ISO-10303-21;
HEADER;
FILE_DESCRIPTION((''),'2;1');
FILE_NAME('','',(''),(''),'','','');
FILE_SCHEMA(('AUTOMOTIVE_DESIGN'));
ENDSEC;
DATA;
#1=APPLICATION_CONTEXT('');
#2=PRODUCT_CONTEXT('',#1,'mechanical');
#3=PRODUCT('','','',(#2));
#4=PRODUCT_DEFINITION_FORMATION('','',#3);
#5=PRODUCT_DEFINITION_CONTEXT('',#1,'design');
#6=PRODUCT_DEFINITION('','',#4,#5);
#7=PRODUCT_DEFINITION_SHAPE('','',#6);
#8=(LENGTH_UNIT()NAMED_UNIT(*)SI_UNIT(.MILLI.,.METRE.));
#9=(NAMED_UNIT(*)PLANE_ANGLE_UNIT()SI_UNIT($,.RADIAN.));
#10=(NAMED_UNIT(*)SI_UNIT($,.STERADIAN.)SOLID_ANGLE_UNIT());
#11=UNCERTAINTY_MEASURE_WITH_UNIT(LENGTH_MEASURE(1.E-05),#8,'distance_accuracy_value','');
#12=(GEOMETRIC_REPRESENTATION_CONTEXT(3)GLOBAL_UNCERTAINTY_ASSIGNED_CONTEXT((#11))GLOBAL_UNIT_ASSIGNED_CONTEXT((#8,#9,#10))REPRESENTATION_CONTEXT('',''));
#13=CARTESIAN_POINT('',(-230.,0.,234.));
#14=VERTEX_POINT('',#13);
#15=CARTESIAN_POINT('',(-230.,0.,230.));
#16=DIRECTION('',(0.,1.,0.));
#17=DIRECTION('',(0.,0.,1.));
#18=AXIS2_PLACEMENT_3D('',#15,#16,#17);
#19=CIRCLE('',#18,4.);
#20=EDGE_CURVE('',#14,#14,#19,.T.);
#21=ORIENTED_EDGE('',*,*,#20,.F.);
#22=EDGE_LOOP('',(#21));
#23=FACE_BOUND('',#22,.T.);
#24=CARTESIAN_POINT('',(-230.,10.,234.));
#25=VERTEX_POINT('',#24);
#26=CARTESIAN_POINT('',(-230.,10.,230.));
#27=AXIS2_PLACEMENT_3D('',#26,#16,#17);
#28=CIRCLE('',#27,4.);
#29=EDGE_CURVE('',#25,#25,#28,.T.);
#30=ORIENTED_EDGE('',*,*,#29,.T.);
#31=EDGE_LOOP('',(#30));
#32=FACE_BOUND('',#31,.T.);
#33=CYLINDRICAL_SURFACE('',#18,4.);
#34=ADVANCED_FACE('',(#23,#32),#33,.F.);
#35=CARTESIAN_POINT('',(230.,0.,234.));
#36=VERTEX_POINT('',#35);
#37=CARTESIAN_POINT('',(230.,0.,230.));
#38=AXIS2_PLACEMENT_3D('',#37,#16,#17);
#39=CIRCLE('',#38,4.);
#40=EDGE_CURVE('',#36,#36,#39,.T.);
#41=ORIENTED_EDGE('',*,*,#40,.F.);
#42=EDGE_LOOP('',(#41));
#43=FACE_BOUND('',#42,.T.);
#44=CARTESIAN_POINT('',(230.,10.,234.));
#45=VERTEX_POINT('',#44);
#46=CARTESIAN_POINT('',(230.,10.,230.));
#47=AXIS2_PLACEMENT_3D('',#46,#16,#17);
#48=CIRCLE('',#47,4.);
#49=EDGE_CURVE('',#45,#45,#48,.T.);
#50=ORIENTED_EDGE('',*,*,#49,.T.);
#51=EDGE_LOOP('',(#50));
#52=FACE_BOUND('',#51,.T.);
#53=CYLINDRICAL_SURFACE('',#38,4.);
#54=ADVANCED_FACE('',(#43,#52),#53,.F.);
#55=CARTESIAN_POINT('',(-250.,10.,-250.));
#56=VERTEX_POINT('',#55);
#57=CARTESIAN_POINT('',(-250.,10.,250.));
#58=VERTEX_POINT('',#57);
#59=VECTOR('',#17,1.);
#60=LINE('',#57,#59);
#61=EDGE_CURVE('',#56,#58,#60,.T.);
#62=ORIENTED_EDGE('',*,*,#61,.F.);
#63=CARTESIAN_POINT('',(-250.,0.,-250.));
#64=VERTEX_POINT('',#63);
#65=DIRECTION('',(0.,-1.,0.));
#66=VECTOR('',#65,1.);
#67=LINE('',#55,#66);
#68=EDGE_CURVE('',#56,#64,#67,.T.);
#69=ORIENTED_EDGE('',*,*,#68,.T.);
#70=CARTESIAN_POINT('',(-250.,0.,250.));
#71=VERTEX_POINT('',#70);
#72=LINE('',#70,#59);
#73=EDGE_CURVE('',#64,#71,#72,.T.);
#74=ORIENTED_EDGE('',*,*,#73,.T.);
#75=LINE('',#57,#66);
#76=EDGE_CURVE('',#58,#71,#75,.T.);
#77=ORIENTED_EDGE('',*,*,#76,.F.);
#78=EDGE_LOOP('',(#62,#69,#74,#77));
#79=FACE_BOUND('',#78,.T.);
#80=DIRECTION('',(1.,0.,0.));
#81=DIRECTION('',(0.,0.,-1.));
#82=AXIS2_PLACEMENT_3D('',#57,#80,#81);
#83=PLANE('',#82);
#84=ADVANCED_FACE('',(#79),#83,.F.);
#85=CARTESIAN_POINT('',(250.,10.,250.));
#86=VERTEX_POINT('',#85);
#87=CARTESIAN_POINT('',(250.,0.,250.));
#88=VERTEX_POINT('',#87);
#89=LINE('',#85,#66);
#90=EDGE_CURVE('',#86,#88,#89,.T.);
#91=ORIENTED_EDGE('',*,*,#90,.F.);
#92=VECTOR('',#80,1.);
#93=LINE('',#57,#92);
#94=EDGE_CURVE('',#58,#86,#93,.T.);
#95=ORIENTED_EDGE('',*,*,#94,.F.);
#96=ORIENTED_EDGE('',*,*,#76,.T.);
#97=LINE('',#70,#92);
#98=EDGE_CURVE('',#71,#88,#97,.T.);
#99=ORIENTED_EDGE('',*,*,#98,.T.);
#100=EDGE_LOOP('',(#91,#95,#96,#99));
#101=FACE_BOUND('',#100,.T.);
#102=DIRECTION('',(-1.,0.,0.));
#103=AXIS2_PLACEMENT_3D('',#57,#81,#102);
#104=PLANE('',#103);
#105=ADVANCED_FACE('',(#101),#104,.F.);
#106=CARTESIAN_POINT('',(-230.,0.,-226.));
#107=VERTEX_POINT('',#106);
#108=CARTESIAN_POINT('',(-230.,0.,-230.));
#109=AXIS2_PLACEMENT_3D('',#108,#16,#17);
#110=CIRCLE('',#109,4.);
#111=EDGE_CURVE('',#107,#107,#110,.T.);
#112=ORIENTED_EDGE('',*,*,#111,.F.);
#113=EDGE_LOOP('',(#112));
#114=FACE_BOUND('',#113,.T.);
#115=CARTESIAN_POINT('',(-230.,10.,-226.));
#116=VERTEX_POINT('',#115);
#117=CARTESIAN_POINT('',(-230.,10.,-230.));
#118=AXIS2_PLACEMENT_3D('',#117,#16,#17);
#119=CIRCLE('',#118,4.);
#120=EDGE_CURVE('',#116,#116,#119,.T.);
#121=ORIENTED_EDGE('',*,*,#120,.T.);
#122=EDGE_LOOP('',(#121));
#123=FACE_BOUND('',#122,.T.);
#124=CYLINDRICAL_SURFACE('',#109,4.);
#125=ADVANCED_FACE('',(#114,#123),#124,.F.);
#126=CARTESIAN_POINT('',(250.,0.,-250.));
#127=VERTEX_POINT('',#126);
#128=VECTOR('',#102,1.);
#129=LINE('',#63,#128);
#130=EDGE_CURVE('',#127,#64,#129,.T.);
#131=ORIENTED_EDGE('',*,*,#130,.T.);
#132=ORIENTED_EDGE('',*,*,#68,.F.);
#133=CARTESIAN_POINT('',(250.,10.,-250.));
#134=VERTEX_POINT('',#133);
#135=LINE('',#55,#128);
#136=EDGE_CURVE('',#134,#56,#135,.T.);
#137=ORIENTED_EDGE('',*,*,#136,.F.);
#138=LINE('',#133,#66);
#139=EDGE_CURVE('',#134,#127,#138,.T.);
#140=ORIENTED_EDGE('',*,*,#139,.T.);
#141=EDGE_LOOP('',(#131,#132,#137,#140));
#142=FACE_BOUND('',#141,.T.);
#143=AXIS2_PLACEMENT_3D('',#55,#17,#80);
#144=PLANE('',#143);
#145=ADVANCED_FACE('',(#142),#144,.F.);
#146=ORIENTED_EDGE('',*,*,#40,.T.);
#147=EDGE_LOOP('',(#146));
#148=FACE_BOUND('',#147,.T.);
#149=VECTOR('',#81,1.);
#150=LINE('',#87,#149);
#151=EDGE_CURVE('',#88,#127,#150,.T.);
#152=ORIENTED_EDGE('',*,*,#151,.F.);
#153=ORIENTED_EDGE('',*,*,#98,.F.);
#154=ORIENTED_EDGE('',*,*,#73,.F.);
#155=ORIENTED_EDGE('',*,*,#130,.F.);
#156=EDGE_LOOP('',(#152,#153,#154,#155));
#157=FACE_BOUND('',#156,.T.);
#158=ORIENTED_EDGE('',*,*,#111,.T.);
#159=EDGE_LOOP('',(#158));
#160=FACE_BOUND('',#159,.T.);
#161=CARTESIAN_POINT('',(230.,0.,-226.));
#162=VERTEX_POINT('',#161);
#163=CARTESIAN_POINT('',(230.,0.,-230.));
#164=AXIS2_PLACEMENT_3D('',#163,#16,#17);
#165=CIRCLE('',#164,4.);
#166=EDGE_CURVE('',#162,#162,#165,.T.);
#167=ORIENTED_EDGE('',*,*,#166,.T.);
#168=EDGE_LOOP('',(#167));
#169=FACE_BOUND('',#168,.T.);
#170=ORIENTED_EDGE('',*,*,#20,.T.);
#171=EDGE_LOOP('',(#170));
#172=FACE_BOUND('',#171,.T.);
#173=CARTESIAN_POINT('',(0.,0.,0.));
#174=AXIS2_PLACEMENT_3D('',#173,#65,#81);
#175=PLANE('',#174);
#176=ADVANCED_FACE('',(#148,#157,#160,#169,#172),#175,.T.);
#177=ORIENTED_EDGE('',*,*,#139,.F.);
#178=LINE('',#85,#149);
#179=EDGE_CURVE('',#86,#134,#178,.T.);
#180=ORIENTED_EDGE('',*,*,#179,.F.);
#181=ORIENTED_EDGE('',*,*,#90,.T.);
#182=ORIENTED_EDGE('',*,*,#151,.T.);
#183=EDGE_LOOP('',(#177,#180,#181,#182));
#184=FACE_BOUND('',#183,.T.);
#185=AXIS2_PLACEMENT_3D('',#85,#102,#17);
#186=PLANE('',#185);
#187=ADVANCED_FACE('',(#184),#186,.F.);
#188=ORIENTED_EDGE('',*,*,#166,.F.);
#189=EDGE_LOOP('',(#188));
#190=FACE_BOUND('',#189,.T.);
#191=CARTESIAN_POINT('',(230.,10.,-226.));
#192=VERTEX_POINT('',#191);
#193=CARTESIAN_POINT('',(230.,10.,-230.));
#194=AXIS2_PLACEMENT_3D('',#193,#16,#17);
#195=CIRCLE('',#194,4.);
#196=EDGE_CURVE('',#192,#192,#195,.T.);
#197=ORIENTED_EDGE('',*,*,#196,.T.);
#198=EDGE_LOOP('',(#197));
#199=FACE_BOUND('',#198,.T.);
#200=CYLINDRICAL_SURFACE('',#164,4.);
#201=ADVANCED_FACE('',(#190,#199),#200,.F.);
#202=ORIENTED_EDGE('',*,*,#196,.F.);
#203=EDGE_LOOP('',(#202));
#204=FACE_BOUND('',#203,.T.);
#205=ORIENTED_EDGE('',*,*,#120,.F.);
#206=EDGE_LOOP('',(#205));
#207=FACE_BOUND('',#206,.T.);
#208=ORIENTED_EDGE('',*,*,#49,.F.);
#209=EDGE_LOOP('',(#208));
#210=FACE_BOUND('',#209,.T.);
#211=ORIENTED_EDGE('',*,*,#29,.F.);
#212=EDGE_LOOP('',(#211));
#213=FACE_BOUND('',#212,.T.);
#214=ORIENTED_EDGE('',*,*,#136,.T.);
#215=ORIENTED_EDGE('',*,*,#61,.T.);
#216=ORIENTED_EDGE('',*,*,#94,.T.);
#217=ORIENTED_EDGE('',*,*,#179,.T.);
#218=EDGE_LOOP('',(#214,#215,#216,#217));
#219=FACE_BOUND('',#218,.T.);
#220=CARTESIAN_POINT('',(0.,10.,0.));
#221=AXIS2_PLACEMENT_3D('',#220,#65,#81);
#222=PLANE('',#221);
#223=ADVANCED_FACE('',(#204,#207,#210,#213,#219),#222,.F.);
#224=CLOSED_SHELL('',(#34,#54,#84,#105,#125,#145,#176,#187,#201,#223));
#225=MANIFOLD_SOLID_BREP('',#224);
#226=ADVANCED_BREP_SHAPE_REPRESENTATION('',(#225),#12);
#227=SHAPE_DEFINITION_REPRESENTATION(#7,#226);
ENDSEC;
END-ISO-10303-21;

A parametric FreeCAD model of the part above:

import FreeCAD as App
import Part
import Sketcher
from FreeCAD import Vector


def add_polygon(sketch, points):
    """Adds a closed chain of lines whose ends are joined by coincident constraints."""
    first, n = sketch.GeometryCount, len(points)
    for a, b in zip(points, points[1:] + points[:1]):
        sketch.addGeometry(Part.LineSegment(App.Vector(*a, 0), App.Vector(*b, 0)), False)
    for i in range(n):
        sketch.addConstraint(Sketcher.Constraint("Coincident", first + i, 2, first + (i + 1) % n, 1))

doc = App.newDocument("Part")
params = doc.addObject("Spreadsheet::Sheet", "Params")
for row, (alias, value) in enumerate([
    ("sketch1_width", "500 mm"),
    ("pad1_length", "10 mm"),
    ("sketch2_diameter", "8 mm"),
], start=1):
    params.set(f"A{row}", alias)
    params.set(f"B{row}", "=" + value)
    params.setAlias(f"B{row}", alias)

body = doc.addObject("PartDesign::Body", "Body")

# Sketch on XZ plane
sketch1 = body.newObject("Sketcher::SketchObject", "Sketch")
sketch1.AttachmentSupport = (doc.getObject("XZ_Plane"), [""])
sketch1.MapMode = "FlatFace"
add_polygon(sketch1, [(-250, -250), (-250, 250), (250, 250), (250, -250)])  # lines 0-3
sketch1.addConstraint(Sketcher.Constraint("Vertical", 0))
sketch1.addConstraint(Sketcher.Constraint("Horizontal", 1))
sketch1.addConstraint(Sketcher.Constraint("Vertical", 2))
sketch1.addConstraint(Sketcher.Constraint("Horizontal", 3))
sketch1.addConstraint(Sketcher.Constraint("Symmetric", 0, 2, 2, 2, -1, 1))
sketch1.addConstraint(Sketcher.Constraint("Equal", 3, 0))
sketch1.addConstraint(Sketcher.Constraint("DistanceX", 1, 1, 1, 2, 500.0))
sketch1.setExpression("Constraints[10]", "Params.sketch1_width")
pad1 = body.newObject("PartDesign::Pad", "Pad")
pad1.Profile = sketch1
pad1.setExpression("Length", "Params.pad1_length")
pad1.Reversed = True

# Sketch on XZ plane
sketch2 = body.newObject("Sketcher::SketchObject", "Sketch001")
sketch2.AttachmentSupport = (doc.getObject("XZ_Plane"), [""])
sketch2.MapMode = "FlatFace"
sketch2.AttachmentOffset = App.Placement(Vector(0, 0, -10), App.Rotation())
sketch2.addGeometry(Part.Circle(Vector(-230, -230, 0), Vector(0, 0, 1), 4), False)
sketch2.addGeometry(Part.Circle(Vector(230, -230, 0), Vector(0, 0, 1), 4), False)
sketch2.addGeometry(Part.Circle(Vector(230, 230, 0), Vector(0, 0, 1), 4), False)
sketch2.addGeometry(Part.Circle(Vector(-230, 230, 0), Vector(0, 0, 1), 4), False)
sketch2.addConstraint(Sketcher.Constraint("Equal", 0, 1))
sketch2.addConstraint(Sketcher.Constraint("Equal", 1, 2))
sketch2.addConstraint(Sketcher.Constraint("Equal", 2, 3))
sketch2.addConstraint(Sketcher.Constraint("Symmetric", 0, 3, 2, 3, -1, 1))
sketch2.addConstraint(Sketcher.Constraint("Symmetric", 1, 3, 3, 3, -1, 1))
sketch2.addConstraint(Sketcher.Constraint("Symmetric", 0, 3, 1, 3, -2))
sketch2.addConstraint(Sketcher.Constraint("Diameter", 0, 8.0))
sketch2.addConstraint(Sketcher.Constraint("DistanceX", 0, 3, -1, 1, 230.0))
sketch2.addConstraint(Sketcher.Constraint("DistanceY", 0, 3, -1, 1, 230.0))
sketch2.setExpression("Constraints[6]", "Params.sketch2_diameter")
pocket1 = body.newObject("PartDesign::Pocket", "Pocket")
pocket1.Profile = sketch2
pocket1.Type = "ThroughAll"
pocket1.Reversed = True

doc.recompute()
